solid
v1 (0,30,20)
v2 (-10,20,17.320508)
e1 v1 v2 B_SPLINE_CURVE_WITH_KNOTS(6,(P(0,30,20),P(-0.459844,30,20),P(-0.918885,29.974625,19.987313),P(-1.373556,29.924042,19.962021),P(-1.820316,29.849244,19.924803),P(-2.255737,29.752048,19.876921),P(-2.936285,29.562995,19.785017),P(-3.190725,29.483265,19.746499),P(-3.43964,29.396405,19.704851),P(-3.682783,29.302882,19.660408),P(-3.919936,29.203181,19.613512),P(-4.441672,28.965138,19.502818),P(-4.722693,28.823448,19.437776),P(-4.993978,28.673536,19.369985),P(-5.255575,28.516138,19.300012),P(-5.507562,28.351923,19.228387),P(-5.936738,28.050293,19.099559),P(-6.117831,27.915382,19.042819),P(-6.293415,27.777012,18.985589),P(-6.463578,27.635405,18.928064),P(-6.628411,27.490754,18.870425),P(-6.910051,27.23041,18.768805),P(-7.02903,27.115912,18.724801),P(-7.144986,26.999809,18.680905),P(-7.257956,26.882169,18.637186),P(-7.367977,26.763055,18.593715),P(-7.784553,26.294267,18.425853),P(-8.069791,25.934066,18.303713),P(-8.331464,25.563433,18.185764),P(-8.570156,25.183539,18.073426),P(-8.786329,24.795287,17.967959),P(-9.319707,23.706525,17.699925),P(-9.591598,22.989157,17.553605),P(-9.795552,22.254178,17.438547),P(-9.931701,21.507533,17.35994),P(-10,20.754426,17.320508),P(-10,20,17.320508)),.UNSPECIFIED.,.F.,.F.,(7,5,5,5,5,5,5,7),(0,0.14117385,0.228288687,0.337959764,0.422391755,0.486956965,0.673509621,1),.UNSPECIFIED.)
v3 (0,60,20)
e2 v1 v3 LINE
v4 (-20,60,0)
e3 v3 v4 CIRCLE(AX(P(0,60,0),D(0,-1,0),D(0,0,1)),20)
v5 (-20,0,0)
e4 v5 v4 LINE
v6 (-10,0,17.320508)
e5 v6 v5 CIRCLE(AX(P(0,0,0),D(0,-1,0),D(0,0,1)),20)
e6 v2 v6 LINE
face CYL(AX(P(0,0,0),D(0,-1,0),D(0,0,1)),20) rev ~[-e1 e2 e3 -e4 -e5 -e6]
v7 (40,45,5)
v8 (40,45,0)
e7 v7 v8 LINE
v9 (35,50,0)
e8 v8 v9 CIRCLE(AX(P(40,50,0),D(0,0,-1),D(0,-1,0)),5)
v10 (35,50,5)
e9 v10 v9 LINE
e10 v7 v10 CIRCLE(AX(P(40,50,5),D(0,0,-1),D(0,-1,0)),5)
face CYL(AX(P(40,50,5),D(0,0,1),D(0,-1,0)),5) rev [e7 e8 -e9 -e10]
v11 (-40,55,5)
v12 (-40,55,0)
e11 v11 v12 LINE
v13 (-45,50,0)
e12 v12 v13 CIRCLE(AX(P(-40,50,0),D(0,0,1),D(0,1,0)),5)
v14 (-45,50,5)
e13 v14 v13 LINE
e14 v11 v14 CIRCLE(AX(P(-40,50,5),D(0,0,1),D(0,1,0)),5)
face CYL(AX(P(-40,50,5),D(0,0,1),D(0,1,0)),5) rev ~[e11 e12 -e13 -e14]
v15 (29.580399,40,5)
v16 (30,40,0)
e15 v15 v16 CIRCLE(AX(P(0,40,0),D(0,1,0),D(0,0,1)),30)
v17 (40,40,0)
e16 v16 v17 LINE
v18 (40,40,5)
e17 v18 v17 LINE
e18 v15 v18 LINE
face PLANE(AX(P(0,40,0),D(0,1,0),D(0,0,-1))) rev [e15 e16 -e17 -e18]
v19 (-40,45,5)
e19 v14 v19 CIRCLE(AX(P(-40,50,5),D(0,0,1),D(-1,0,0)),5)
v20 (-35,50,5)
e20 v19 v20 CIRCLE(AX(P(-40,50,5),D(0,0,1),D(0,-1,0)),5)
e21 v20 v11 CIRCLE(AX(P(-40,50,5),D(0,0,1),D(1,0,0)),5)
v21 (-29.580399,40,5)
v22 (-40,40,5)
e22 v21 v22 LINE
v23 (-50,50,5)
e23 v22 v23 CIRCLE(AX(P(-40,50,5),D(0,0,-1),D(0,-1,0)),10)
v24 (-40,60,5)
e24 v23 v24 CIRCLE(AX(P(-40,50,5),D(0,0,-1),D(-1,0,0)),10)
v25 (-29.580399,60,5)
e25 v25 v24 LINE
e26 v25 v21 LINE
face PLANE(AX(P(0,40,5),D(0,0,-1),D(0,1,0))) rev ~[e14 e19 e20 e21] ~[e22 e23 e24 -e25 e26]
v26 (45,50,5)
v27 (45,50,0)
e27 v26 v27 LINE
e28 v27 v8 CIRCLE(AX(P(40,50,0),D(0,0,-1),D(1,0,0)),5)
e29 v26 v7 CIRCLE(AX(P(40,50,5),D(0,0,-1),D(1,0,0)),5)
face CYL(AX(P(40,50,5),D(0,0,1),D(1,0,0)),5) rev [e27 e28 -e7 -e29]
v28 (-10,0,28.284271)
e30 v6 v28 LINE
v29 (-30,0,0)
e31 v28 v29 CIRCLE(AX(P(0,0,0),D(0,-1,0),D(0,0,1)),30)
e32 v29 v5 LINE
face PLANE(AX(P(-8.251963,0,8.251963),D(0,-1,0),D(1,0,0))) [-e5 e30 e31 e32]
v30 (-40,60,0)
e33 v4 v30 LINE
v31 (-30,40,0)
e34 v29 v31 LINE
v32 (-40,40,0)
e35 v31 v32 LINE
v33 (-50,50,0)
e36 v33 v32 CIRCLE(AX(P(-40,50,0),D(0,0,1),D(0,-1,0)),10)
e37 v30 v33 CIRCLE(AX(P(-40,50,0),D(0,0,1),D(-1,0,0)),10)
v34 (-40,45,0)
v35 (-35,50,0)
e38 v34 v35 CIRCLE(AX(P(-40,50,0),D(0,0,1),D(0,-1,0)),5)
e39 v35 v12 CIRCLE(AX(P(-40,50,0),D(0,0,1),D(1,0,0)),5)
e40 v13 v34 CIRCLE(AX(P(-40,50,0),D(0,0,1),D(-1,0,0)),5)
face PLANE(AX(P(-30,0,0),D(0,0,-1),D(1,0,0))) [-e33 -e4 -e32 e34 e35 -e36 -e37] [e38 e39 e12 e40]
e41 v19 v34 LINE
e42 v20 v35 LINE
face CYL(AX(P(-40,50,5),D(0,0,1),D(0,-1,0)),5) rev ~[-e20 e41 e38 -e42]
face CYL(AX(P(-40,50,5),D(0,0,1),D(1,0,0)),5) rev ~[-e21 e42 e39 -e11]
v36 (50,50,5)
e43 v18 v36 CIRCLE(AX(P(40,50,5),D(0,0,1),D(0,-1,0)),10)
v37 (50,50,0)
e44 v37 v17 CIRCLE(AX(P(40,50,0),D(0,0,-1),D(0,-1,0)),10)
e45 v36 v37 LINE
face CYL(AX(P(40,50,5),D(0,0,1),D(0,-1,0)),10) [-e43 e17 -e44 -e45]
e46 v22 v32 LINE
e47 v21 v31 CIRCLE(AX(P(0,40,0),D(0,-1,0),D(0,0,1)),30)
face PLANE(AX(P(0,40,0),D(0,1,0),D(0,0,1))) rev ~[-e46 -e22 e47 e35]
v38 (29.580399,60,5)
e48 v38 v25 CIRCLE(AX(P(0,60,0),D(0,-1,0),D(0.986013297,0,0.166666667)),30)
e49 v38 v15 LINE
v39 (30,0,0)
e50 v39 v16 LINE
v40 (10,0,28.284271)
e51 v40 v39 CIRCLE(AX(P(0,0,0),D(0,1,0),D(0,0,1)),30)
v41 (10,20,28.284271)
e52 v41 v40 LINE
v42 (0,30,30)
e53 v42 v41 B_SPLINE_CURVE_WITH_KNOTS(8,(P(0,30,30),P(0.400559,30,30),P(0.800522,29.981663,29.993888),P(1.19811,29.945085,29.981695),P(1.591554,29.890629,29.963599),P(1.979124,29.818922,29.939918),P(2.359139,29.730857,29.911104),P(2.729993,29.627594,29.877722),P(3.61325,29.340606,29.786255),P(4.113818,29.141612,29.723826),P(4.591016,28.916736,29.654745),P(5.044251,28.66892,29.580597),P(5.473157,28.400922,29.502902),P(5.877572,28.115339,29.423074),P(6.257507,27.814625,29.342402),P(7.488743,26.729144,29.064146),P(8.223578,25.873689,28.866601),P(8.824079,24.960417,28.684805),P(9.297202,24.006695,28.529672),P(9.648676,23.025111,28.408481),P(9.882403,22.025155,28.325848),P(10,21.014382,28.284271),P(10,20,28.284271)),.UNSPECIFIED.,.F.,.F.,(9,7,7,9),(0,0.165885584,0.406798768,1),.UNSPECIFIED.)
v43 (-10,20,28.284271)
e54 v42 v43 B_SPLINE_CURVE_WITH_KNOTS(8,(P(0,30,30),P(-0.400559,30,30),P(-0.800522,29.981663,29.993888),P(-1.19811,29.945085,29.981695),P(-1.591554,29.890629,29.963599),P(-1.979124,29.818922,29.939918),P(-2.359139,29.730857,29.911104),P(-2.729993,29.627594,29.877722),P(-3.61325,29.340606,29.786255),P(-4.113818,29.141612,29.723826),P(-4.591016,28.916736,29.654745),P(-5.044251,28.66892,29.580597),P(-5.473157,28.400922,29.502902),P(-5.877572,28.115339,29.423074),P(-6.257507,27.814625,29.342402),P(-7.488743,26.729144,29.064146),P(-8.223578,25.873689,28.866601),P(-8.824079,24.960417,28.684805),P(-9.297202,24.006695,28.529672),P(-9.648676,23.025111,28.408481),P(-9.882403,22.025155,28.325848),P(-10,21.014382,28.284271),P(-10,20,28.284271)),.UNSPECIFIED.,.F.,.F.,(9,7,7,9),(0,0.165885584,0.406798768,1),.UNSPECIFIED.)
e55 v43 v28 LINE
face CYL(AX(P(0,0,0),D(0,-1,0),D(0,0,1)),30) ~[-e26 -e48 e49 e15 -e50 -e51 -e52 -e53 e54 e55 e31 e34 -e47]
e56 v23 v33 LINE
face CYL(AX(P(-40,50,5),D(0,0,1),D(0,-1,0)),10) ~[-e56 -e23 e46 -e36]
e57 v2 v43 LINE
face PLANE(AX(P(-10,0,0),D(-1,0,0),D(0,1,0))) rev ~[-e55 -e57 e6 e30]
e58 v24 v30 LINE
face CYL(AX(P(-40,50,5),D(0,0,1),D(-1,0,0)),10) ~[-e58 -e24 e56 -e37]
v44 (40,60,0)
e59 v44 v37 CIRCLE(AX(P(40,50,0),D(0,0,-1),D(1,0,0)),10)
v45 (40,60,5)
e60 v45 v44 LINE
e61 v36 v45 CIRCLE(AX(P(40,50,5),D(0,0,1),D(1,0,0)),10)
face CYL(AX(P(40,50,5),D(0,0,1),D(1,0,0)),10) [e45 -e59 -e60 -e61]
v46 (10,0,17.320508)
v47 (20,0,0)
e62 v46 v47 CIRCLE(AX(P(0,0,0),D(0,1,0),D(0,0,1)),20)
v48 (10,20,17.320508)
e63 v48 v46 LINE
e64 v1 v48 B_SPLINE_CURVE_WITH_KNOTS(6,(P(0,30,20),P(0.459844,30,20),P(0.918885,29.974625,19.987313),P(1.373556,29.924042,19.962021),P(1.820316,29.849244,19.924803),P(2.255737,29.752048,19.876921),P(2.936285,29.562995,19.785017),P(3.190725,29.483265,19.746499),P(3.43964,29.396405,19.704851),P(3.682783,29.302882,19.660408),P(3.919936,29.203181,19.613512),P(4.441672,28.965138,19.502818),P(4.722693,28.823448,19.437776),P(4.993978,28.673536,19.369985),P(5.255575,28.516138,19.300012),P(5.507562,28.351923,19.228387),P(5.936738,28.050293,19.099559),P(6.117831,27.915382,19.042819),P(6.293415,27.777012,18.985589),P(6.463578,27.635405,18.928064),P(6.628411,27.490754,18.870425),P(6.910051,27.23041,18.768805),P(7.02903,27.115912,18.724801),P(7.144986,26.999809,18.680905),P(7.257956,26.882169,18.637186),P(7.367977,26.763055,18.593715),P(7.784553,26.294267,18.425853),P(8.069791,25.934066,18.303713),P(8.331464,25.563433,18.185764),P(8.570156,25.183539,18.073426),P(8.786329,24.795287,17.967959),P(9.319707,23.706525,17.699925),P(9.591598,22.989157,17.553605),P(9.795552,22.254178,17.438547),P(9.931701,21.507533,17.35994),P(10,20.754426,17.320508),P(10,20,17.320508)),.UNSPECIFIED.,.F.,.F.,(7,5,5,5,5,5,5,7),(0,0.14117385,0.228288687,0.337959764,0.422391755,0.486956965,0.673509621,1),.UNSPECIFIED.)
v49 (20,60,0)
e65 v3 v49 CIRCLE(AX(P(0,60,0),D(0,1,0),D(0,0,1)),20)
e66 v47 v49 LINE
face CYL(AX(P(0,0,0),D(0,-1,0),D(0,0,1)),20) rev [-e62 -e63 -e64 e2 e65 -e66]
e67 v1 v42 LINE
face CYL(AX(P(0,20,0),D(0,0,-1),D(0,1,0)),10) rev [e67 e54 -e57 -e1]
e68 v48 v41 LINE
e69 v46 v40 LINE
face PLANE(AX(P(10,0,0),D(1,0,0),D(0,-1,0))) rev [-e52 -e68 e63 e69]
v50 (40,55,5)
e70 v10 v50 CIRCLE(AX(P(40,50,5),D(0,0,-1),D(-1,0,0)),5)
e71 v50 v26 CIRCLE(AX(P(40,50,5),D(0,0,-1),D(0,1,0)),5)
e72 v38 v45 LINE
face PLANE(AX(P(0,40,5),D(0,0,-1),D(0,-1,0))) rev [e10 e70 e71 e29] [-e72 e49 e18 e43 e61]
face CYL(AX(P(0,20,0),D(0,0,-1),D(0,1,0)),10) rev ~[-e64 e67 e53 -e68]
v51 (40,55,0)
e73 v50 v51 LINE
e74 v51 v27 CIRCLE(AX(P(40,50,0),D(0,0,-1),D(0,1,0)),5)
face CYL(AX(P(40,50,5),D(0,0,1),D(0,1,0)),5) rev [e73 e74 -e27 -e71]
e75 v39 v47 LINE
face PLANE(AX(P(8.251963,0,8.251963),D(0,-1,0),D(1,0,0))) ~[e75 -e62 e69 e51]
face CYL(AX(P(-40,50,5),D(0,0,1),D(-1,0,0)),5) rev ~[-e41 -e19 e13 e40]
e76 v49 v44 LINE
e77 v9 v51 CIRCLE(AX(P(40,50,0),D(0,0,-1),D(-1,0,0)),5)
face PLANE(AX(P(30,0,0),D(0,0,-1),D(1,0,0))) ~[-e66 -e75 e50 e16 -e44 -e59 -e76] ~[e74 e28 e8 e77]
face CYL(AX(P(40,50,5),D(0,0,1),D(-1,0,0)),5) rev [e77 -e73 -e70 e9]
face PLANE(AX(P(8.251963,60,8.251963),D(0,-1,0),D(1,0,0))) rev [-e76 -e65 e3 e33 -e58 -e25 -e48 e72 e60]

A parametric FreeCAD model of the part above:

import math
import FreeCAD as App
import Part
import Sketcher

V = App.Vector
Q = App.Units.Quantity


def add_polygon(sketch, points):
    """Adds a closed chain of lines whose ends are joined by coincident constraints."""
    first, n = sketch.GeometryCount, len(points)
    for a, b in zip(points, points[1:] + points[:1]):
        sketch.addGeometry(Part.LineSegment(App.Vector(*a, 0), App.Vector(*b, 0)), False)
    for i in range(n):
        sketch.addConstraint(Sketcher.Constraint("Coincident", first + i, 2, first + (i + 1) % n, 1))

doc = App.newDocument("Part")
body = doc.addObject("PartDesign::Body", "Body")

# Sketch on XZ plane
sketch1 = doc.addObject("Sketcher::SketchObject", "Sketch")
body.addObject(sketch1)
sketch1.AttachmentSupport = (doc.XZ_Plane, [""])
sketch1.MapMode = "FlatFace"
sketch1.addGeometry(Part.LineSegment(V(0, 0, 0), V(0, 30, 0)), False)
sketch1.addGeometry(Part.ArcOfCircle(Part.Circle(V(0, 0, 0), V(0, 0, 1), 30), math.radians(90), math.radians(180)), False)
sketch1.addGeometry(Part.LineSegment(V(-30, 0, 0), V(0, 0, 0)), False)
sketch1.addConstraint(Sketcher.Constraint("Coincident", 0, 2, 1, 1))
sketch1.addConstraint(Sketcher.Constraint("Coincident", 1, 2, 2, 1))
sketch1.addConstraint(Sketcher.Constraint("Coincident", 2, 2, 0, 1))
sketch1.addConstraint(Sketcher.Constraint("Vertical", 0))
sketch1.addConstraint(Sketcher.Constraint("Horizontal", 2))
sketch1.addConstraint(Sketcher.Constraint("Coincident", 1, 3, -1, 1))
sketch1.addConstraint(Sketcher.Constraint("Coincident", 2, 2, -1, 1))
sketch1.addConstraint(Sketcher.Constraint("Radius", 1, Q("30 mm")))
pad1 = doc.addObject("PartDesign::Pad", "Pad")
body.addObject(pad1)
pad1.Profile = sketch1
pad1.Length = 60
pad1.Reversed = True

# Sketch on YZ plane
sketch2 = doc.addObject("Sketcher::SketchObject", "Sketch001")
body.addObject(sketch2)
sketch2.AttachmentSupport = (doc.YZ_Plane, [""])
sketch2.MapMode = "FlatFace"
add_polygon(sketch2, [(40, 5), (40, 0), (60, 0), (60, 5)])  # lines 0-3
sketch2.addConstraint(Sketcher.Constraint("Vertical", 0))
sketch2.addConstraint(Sketcher.Constraint("Horizontal", 1))
sketch2.addConstraint(Sketcher.Constraint("Vertical", 2))
sketch2.addConstraint(Sketcher.Constraint("Horizontal", 3))
sketch2.addConstraint(Sketcher.Constraint("PointOnObject", 0, 2, -1))
sketch2.addConstraint(Sketcher.Constraint("DistanceX", 1, 1, 1, 2, Q("20 mm")))
sketch2.addConstraint(Sketcher.Constraint("DistanceY", 0, 2, 0, 1, Q("5 mm")))
sketch2.addConstraint(Sketcher.Constraint("DistanceX", -1, 1, 0, 2, Q("40 mm")))
pad2 = doc.addObject("PartDesign::Pad", "Pad001")
body.addObject(pad2)
pad2.Profile = sketch2
pad2.Length = 50
pad2.Reversed = True

# Sketch on XZ plane
sketch3 = doc.addObject("Sketcher::SketchObject", "Sketch002")
body.addObject(sketch3)
sketch3.AttachmentSupport = (doc.XZ_Plane, [""])
sketch3.MapMode = "FlatFace"
sketch3.addGeometry(Part.ArcOfCircle(Part.Circle(V(0, 0, 0), V(0, 0, 1), 20), math.radians(90), math.radians(180)), False)
sketch3.addGeometry(Part.LineSegment(V(-20, 0, 0), V(0, 0, 0)), False)
sketch3.addGeometry(Part.LineSegment(V(0, 0, 0), V(0, 20, 0)), False)
sketch3.addConstraint(Sketcher.Constraint("Coincident", 0, 2, 1, 1))
sketch3.addConstraint(Sketcher.Constraint("Coincident", 1, 2, 2, 1))
sketch3.addConstraint(Sketcher.Constraint("Coincident", 2, 2, 0, 1))
sketch3.addConstraint(Sketcher.Constraint("Horizontal", 1))
sketch3.addConstraint(Sketcher.Constraint("Vertical", 2))
sketch3.addConstraint(Sketcher.Constraint("Coincident", 0, 3, -1, 1))
sketch3.addConstraint(Sketcher.Constraint("Coincident", 1, 2, -1, 1))
sketch3.addConstraint(Sketcher.Constraint("Radius", 0, Q("20 mm")))
pocket1 = doc.addObject("PartDesign::Pocket", "Pocket")
body.addObject(pocket1)
pocket1.Profile = sketch3
pocket1.Type = "ThroughAll"

# Sketch on XY plane
sketch4 = doc.addObject("Sketcher::SketchObject", "Sketch003")
body.addObject(sketch4)
sketch4.AttachmentSupport = (doc.XY_Plane, [""])
sketch4.MapMode = "FlatFace"
sketch4.addGeometry(Part.LineSegment(V(-10, 20, 0), V(-10, 0, 0)), False)
sketch4.addGeometry(Part.LineSegment(V(-10, 0, 0), V(0, 0, 0)), False)
sketch4.addGeometry(Part.LineSegment(V(0, 0, 0), V(0, 30, 0)), False)
sketch4.addGeometry(Part.ArcOfCircle(Part.Circle(V(0, 20, 0), V(0, 0, 1), 10), math.radians(90), math.radians(180)), False)
sketch4.addConstraint(Sketcher.Constraint("Coincident", 0, 2, 1, 1))
sketch4.addConstraint(Sketcher.Constraint("Coincident", 1, 2, 2, 1))
sketch4.addConstraint(Sketcher.Constraint("Coincident", 2, 2, 3, 1))
sketch4.addConstraint(Sketcher.Constraint("Tangent", 3, 2, 0, 1))
sketch4.addConstraint(Sketcher.Constraint("Vertical", 0))
sketch4.addConstraint(Sketcher.Constraint("Horizontal", 1))
sketch4.addConstraint(Sketcher.Constraint("Vertical", 2))
sketch4.addConstraint(Sketcher.Constraint("Coincident", 1, 2, -1, 1))
sketch4.addConstraint(Sketcher.Constraint("PointOnObject", 3, 3, -2))
sketch4.addConstraint(Sketcher.Constraint("Radius", 3, Q("10 mm")))
sketch4.addConstraint(Sketcher.Constraint("DistanceY", 0, 2, 0, 1, Q("20 mm")))
pocket2 = doc.addObject("PartDesign::Pocket", "Pocket001")
body.addObject(pocket2)
pocket2.Profile = sketch4
pocket2.Type = "ThroughAll"
pocket2.Reversed = True

# Sketch on XY plane
sketch5 = doc.addObject("Sketcher::SketchObject", "Sketch004")
body.addObject(sketch5)
sketch5.AttachmentSupport = (doc.XY_Plane, [""])
sketch5.MapMode = "FlatFace"
sketch5.AttachmentOffset = App.Placement(V(0, 0, 5), App.Rotation())
sketch5.addGeometry(Part.ArcOfCircle(Part.Circle(V(-40, 50, 0), V(0, 0, 1), 10), math.radians(180), math.radians(270)), False)
sketch5.addGeometry(Part.LineSegment(V(-50, 50, 0), V(-50, 40, 0)), False)
sketch5.addGeometry(Part.LineSegment(V(-50, 40, 0), V(-40, 40, 0)), False)
sketch5.addGeometry(Part.LineSegment(V(-40, 60, 0), V(-50, 60, 0)), False)
sketch5.addGeometry(Part.LineSegment(V(-50, 60, 0), V(-50, 50, 0)), False)
sketch5.addGeometry(Part.ArcOfCircle(Part.Circle(V(-40, 50, 0), V(0, 0, 1), 10), math.radians(90), math.radians(180)), False)
sketch5.addGeometry(Part.ArcOfCircle(Part.Circle(V(-40, 50, 0), V(0, 0, 1), 5), math.radians(180), math.radians(270)), False)
sketch5.addGeometry(Part.ArcOfCircle(Part.Circle(V(-40, 50, 0), V(0, 0, 1), 5), math.radians(-90), math.radians(0)), False)
sketch5.addGeometry(Part.ArcOfCircle(Part.Circle(V(-40, 50, 0), V(0, 0, 1), 5), math.radians(0), math.radians(90)), False)
sketch5.addGeometry(Part.ArcOfCircle(Part.Circle(V(-40, 50, 0), V(0, 0, 1), 5), math.radians(90), math.radians(180)), False)
sketch5.addConstraint(Sketcher.Constraint("Tangent", 0, 1, 1, 1))
sketch5.addConstraint(Sketcher.Constraint("Coincident", 1, 2, 2, 1))
sketch5.addConstraint(Sketcher.Constraint("Tangent", 2, 2, 0, 2))
sketch5.addConstraint(Sketcher.Constraint("Coincident", 3, 2, 4, 1))
sketch5.addConstraint(Sketcher.Constraint("Tangent", 4, 2, 5, 2))
sketch5.addConstraint(Sketcher.Constraint("Tangent", 5, 1, 3, 1))
sketch5.addConstraint(Sketcher.Constraint("Tangent", 6, 2, 7, 1))
sketch5.addConstraint(Sketcher.Constraint("Tangent", 7, 2, 8, 1))
sketch5.addConstraint(Sketcher.Constraint("Tangent", 8, 2, 9, 1))
sketch5.addConstraint(Sketcher.Constraint("Tangent", 9, 2, 6, 1))
sketch5.addConstraint(Sketcher.Constraint("Vertical", 1))
sketch5.addConstraint(Sketcher.Constraint("Horizontal", 2))
sketch5.addConstraint(Sketcher.Constraint("Horizontal", 3))
sketch5.addConstraint(Sketcher.Constraint("Vertical", 4))
sketch5.addConstraint(Sketcher.Constraint("Coincident", 5, 3, 0, 3))
sketch5.addConstraint(Sketcher.Constraint("Coincident", 6, 3, 0, 3))
sketch5.addConstraint(Sketcher.Constraint("Equal", 0, 5))
sketch5.addConstraint(Sketcher.Constraint("Equal", 6, 7))
sketch5.addConstraint(Sketcher.Constraint("Horizontal", 4, 2, 7, 2))
sketch5.addConstraint(Sketcher.Constraint("Horizontal", 7, 2, 9, 2))
sketch5.addConstraint(Sketcher.Constraint("Vertical", 5, 1, 6, 2))
sketch5.addConstraint(Sketcher.Constraint("Vertical", 6, 2, 8, 2))
sketch5.addConstraint(Sketcher.Constraint("Radius", 0, Q("10 mm")))
sketch5.addConstraint(Sketcher.Constraint("Radius", 6, Q("5 mm")))
sketch5.addConstraint(Sketcher.Constraint("DistanceX", 0, 3, -1, 1, Q("40 mm")))
sketch5.addConstraint(Sketcher.Constraint("DistanceY", -1, 1, 0, 3, Q("50 mm")))
pocket3 = doc.addObject("PartDesign::Pocket", "Pocket002")
body.addObject(pocket3)
pocket3.Profile = sketch5
pocket3.Type = "ThroughAll"
body2 = doc.addObject("PartDesign::Body", "Body001")
doc.recompute()

body2.BaseFeature = body
doc.recompute()

mirroring = doc.addObject("Part::Mirroring", "Mirroring")
mirroring.Source = body
mirroring.Base = V(0, 0, 0)
mirroring.Normal = V(1, 0, 0)
body3 = doc.addObject("PartDesign::Body", "Body002")
body3.BaseFeature = mirroring
boolean = doc.addObject("PartDesign::Boolean", "Boolean")
body2.addObject(boolean)
boolean.Type = "Fuse"
boolean.addObjects([body3])
doc.recompute()
mirroring.Visibility = False

doc.recompute()
